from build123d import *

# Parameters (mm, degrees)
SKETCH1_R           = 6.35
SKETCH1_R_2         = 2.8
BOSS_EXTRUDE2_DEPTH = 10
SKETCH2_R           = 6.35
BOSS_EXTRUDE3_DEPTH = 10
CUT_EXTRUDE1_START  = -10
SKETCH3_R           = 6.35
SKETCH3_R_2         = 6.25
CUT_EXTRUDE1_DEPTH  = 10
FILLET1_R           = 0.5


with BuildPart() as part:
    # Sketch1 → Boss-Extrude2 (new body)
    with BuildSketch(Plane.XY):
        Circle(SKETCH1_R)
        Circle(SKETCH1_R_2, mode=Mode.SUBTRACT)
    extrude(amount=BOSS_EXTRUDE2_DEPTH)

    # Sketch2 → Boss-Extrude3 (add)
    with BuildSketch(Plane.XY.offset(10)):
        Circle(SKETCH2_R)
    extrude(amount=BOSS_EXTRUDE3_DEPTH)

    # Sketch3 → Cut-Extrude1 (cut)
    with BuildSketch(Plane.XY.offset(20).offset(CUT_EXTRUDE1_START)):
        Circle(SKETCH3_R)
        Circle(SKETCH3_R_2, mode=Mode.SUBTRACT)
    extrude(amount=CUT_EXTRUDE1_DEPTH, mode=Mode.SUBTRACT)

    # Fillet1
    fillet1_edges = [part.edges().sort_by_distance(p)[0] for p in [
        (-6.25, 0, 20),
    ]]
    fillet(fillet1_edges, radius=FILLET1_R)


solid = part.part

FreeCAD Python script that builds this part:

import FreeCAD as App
import Part
import Sketcher


def edges_at(feature, points):
    """Names of the edges that pass closest to the given points."""
    edges = feature.Shape.Edges
    near = lambda p: min(range(len(edges)), key=lambda i: edges[i].distToShape(Part.Vertex(*p))[0])
    return sorted({f"Edge{near(p) + 1}" for p in points})

doc = App.newDocument("Part")
body = doc.addObject("PartDesign::Body", "Body")

sketch1 = doc.addObject("Sketcher::SketchObject", "Sketch")
body.addObject(sketch1)
sketch1.AttachmentSupport = (doc.XY_Plane, [""])
sketch1.MapMode = "FlatFace"
sketch1.addGeometry([
    Part.Circle(App.Vector(0, 0, 0), App.Vector(0, 0, 1), 6.3),
    Part.Circle(App.Vector(0, 0, 0), App.Vector(0, 0, 1), 2.8),
], False)
sketch1.addConstraint([
    Sketcher.Constraint("Coincident", 0, 3, -1, 1),
    Sketcher.Constraint("Coincident", 1, 3, -1, 1),
    Sketcher.Constraint("Diameter", 0, 12.7),
    Sketcher.Constraint("Diameter", 1, 5.6),
])
pad1 = doc.addObject("PartDesign::Pad", "Pad")
body.addObject(pad1)
pad1.Profile = sketch1
pad1.Length = 10

sketch2 = doc.addObject("Sketcher::SketchObject", "Sketch001")
body.addObject(sketch2)
sketch2.AttachmentSupport = (doc.XY_Plane, [""])
sketch2.MapMode = "FlatFace"
sketch2.AttachmentOffset = App.Placement(App.Vector(0, 0, 10), App.Rotation())
sketch2.addGeometry(Part.Circle(App.Vector(0, 0, 0), App.Vector(0, 0, 1), 6), False)
sketch2.addConstraint([
    Sketcher.Constraint("Coincident", 0, 3, -1, 1),
    Sketcher.Constraint("Diameter", 0, 12.7),
])
pad2 = doc.addObject("PartDesign::Pad", "Pad001")
body.addObject(pad2)
pad2.Profile = sketch2
pad2.Length = 10

sketch3 = doc.addObject("Sketcher::SketchObject", "Sketch002")
body.addObject(sketch3)
sketch3.AttachmentSupport = (doc.XY_Plane, [""])
sketch3.MapMode = "FlatFace"
sketch3.AttachmentOffset = App.Placement(App.Vector(0, 0, 10), App.Rotation())
sketch3.addGeometry([
    Part.Circle(App.Vector(0, 0, 0), App.Vector(0, 0, 1), 6),
    Part.Circle(App.Vector(0, 0, 0), App.Vector(0, 0, 1), 6),
], False)
sketch3.addConstraint([
    Sketcher.Constraint("Coincident", 0, 3, -1, 1),
    Sketcher.Constraint("Coincident", 1, 3, -1, 1),
    Sketcher.Constraint("Diameter", 0, 12.7),
    Sketcher.Constraint("Diameter", 1, 12.5),
])
pocket1 = doc.addObject("PartDesign::Pocket", "Pocket")
body.addObject(pocket1)
pocket1.Profile = sketch3
pocket1.Length = 10
pocket1.Reversed = True
doc.recompute()

fillet = doc.addObject("PartDesign::Fillet", "Fillet")
body.addObject(fillet)
fillet.Base = (pocket1, edges_at(pocket1, [(-6.25, 0, 20)]))
fillet.Radius = 0.5

doc.recompute()
